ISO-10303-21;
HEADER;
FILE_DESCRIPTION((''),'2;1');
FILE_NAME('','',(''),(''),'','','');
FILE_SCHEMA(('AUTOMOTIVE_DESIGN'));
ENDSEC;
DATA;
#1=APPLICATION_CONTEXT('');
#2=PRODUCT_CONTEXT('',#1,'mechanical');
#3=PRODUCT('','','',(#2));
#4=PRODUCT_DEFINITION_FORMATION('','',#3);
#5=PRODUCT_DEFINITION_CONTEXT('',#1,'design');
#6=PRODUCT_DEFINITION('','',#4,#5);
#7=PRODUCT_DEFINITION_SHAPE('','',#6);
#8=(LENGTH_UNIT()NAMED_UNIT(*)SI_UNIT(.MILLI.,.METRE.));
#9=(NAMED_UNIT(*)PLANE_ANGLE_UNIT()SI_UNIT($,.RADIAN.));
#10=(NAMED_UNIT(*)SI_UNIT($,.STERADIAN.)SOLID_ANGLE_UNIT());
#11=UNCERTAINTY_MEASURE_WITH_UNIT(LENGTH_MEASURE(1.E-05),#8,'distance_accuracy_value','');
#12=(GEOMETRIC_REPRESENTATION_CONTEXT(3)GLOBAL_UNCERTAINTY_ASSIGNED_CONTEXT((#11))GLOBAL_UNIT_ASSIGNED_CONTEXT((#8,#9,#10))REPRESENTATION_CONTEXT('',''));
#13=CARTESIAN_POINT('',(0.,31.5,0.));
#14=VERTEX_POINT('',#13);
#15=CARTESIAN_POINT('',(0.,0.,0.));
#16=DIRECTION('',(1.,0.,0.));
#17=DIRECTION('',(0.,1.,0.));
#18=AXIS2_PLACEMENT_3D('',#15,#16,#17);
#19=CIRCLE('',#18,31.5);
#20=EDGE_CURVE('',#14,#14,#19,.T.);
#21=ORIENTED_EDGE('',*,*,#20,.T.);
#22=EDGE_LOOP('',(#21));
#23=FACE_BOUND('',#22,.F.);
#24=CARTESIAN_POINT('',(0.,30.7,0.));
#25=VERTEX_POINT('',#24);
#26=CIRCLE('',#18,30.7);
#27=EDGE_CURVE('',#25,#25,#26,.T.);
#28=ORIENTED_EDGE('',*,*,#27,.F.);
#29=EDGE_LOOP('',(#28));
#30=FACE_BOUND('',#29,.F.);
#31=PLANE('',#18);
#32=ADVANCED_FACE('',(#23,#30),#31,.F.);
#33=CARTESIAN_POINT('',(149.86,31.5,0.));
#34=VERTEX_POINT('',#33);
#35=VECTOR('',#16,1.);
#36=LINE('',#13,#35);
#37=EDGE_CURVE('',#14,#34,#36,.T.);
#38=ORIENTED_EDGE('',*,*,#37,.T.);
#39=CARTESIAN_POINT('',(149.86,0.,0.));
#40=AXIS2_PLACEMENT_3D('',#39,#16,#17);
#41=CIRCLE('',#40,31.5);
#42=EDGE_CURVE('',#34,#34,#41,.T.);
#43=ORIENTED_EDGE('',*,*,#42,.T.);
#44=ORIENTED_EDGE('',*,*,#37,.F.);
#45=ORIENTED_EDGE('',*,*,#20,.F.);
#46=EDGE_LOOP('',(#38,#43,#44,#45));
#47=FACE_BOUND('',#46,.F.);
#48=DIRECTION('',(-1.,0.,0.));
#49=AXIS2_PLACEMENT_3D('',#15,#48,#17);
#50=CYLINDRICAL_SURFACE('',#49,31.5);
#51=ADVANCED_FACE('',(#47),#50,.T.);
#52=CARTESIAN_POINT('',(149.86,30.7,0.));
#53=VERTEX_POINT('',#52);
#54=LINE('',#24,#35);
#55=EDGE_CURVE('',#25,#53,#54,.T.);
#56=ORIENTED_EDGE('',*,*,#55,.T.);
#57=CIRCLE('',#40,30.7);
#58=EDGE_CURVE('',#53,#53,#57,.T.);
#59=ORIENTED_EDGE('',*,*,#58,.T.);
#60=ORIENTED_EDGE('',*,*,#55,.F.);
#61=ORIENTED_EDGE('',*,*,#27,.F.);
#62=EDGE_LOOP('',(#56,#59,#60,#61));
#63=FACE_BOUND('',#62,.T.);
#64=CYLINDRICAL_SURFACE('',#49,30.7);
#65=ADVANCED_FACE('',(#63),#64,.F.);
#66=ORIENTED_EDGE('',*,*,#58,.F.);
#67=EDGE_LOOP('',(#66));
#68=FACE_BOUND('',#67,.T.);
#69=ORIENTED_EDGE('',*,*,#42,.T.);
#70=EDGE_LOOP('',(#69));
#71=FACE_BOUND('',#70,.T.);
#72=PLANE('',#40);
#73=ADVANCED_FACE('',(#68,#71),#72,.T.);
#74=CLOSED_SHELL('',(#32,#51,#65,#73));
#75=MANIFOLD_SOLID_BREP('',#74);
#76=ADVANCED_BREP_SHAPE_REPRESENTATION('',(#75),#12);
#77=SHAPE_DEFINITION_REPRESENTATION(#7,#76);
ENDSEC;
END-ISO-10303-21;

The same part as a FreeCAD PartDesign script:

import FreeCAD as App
import Part
import Sketcher

V = App.Vector

doc = App.newDocument("Part")
params = doc.addObject("Spreadsheet::Sheet", "Params")
for row, (alias, value) in enumerate([
    ("sketch1_diameter", "63 mm"),
    ("sketch1_diameter2", "61.4 mm"),
    ("pad1_length", "149.86 mm"),
], start=1):
    params.set(f"A{row}", alias)
    params.set(f"B{row}", "=" + value)
    params.setAlias(f"B{row}", alias)

body = doc.addObject("PartDesign::Body", "Body")

# Sketch on YZ plane
sketch1 = body.newObject("Sketcher::SketchObject", "Sketch")
sketch1.AttachmentSupport = (doc.getObject("YZ_Plane"), [""])
sketch1.MapMode = "FlatFace"
sketch1.addGeometry(Part.Circle(V(0, 0, 0), V(0, 0, 1), 32), False)
sketch1.addGeometry(Part.Circle(V(0, 0, 0), V(0, 0, 1), 31), False)
sketch1.addConstraint(Sketcher.Constraint("Coincident", 0, 3, -1, 1))
sketch1.addConstraint(Sketcher.Constraint("Coincident", 1, 3, -1, 1))
sketch1.addConstraint(Sketcher.Constraint("Diameter", 0, 63.0))
sketch1.addConstraint(Sketcher.Constraint("Diameter", 1, 61.4))
sketch1.setExpression("Constraints[2]", "Params.sketch1_diameter")
sketch1.setExpression("Constraints[3]", "Params.sketch1_diameter2")
pad1 = body.newObject("PartDesign::Pad", "Pad")
pad1.Profile = sketch1
pad1.setExpression("Length", "Params.pad1_length")

doc.recompute()
